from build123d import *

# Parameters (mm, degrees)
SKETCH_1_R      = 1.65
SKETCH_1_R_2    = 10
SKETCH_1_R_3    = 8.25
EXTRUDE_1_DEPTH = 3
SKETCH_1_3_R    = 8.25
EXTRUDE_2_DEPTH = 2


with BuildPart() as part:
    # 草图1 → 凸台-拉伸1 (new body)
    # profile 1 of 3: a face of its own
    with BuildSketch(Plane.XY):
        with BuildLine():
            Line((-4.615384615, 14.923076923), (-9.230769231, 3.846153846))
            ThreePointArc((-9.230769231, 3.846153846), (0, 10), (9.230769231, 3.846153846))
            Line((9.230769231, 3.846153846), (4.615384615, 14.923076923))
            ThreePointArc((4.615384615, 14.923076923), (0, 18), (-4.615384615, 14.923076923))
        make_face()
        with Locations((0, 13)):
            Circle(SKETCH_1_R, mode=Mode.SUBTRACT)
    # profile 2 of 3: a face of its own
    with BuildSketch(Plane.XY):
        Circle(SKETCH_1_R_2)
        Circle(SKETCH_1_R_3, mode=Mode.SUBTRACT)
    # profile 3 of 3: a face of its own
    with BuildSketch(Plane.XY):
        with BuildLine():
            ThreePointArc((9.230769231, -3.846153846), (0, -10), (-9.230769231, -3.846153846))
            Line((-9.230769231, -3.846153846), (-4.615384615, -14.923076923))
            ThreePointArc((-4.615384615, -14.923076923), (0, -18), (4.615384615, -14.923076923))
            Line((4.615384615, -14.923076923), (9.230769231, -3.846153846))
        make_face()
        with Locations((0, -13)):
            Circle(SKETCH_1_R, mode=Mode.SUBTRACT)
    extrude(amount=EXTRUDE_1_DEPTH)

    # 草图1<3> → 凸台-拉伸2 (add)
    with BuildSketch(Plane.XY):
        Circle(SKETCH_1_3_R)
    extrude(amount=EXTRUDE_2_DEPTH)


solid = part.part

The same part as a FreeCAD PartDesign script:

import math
import FreeCAD as App
import Part
import Sketcher
from FreeCAD import Vector
Q = App.Units.Quantity

doc = App.newDocument("Part")
body = doc.addObject("PartDesign::Body", "Body")

# Sketch on XY plane
sketch1 = doc.addObject("Sketcher::SketchObject", "Sketch")
body.addObject(sketch1)
sketch1.AttachmentSupport = (doc.XY_Plane, [""])
sketch1.MapMode = "FlatFace"
sketch1.addGeometry([
    Part.LineSegment(Vector(-4.6, 14.9, 0), Vector(-9.2, 3.8, 0)),  # 0
    Part.ArcOfCircle(Part.Circle(Vector(0, 0, 0), Vector(0, 0, 1), 10), math.radians(157), math.radians(203)),  # 1
    Part.LineSegment(Vector(-9.2, -3.8, 0), Vector(-4.6, -14.9, 0)),  # 2
    Part.ArcOfCircle(Part.Circle(Vector(0, -13, 0), Vector(0, 0, 1), 5), math.radians(-157), math.radians(-23)),  # 3
    Part.LineSegment(Vector(4.6, -14.9, 0), Vector(9.2, -3.8, 0)),  # 4
    Part.ArcOfCircle(Part.Circle(Vector(0, 0, 0), Vector(0, 0, 1), 10), math.radians(-23), math.radians(23)),  # 5
    Part.LineSegment(Vector(9.2, 3.8, 0), Vector(4.6, 14.9, 0)),  # 6
    Part.ArcOfCircle(Part.Circle(Vector(0, 13, 0), Vector(0, 0, 1), 5), math.radians(23), math.radians(157)),  # 7
    Part.Circle(Vector(0, 13, 0), Vector(0, 0, 1), 1.6),  # 8
    Part.Circle(Vector(0, 0, 0), Vector(0, 0, 1), 8.2),  # 9
    Part.Circle(Vector(0, -13, 0), Vector(0, 0, 1), 1.6),  # 10
], False)
sketch1.addConstraint([
    Sketcher.Constraint("Tangent", 0, 2, 1, 1),
    Sketcher.Constraint("Tangent", 1, 2, 2, 1),
    Sketcher.Constraint("Tangent", 2, 2, 3, 1),
    Sketcher.Constraint("Tangent", 3, 2, 4, 1),
    Sketcher.Constraint("Tangent", 4, 2, 5, 1),
    Sketcher.Constraint("Tangent", 5, 2, 6, 1),
    Sketcher.Constraint("Tangent", 6, 2, 7, 1),
    Sketcher.Constraint("Tangent", 7, 2, 0, 1),
    Sketcher.Constraint("Coincident", 1, 3, -1, 1),
    Sketcher.Constraint("Coincident", 5, 3, -1, 1),
    Sketcher.Constraint("Coincident", 9, 3, -1, 1),
    Sketcher.Constraint("Coincident", 8, 3, 7, 3),
    Sketcher.Constraint("Coincident", 10, 3, 3, 3),
    Sketcher.Constraint("Equal", 1, 5),
    Sketcher.Constraint("Equal", 3, 7),
    Sketcher.Constraint("Equal", 8, 10),
    Sketcher.Constraint("Symmetric", 3, 3, 7, 3, -1, 1),
    Sketcher.Constraint("PointOnObject", 3, 3, -2),
    Sketcher.Constraint("Radius", 1, Q("10 mm")),
    Sketcher.Constraint("Radius", 3, Q("5 mm")),
    Sketcher.Constraint("Diameter", 8, Q("3.3 mm")),
    Sketcher.Constraint("Diameter", 9, Q("16.5 mm")),
    Sketcher.Constraint("Distance", 0, Q("12 mm")),
])
pad1 = doc.addObject("PartDesign::Pad", "Pad")
body.addObject(pad1)
pad1.Profile = sketch1
pad1.Length = 3

# Sketch on XY plane
sketch2 = doc.addObject("Sketcher::SketchObject", "Sketch001")
body.addObject(sketch2)
sketch2.AttachmentSupport = (doc.XY_Plane, [""])
sketch2.MapMode = "FlatFace"
sketch2.addGeometry(Part.Circle(Vector(0, 0, 0), Vector(0, 0, 1), 8), False)
sketch2.addConstraint([
    Sketcher.Constraint("Coincident", 0, 3, -1, 1),
    Sketcher.Constraint("Diameter", 0, Q("16.5 mm")),
])
pad2 = doc.addObject("PartDesign::Pad", "Pad001")
body.addObject(pad2)
pad2.Profile = sketch2
pad2.Length = 2

doc.recompute()
